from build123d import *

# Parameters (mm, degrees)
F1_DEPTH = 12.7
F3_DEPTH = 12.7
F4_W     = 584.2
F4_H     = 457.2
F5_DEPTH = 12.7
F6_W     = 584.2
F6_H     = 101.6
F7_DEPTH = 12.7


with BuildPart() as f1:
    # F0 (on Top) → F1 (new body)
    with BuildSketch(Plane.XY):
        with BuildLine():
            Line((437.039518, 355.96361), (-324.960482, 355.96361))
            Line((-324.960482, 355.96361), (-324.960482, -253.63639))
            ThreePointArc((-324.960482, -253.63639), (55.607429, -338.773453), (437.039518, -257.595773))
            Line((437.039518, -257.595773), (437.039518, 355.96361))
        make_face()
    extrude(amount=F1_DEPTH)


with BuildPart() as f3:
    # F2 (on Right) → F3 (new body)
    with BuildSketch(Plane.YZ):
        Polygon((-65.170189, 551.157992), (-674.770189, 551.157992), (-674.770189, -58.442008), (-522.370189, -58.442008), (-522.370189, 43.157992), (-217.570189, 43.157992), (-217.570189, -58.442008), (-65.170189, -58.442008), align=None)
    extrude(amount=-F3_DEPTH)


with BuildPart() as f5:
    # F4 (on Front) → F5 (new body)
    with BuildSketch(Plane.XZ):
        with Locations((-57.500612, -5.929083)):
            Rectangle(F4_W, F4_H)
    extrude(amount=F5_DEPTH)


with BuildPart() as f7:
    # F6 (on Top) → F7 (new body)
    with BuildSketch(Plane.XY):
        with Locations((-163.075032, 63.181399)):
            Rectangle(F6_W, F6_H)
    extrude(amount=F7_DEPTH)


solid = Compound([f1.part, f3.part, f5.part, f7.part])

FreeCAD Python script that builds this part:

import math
import FreeCAD as App
import Part
import Sketcher
from FreeCAD import Vector
Q = App.Units.Quantity

doc = App.newDocument("Part")
params = doc.addObject("Spreadsheet::Sheet", "Params")
for row, (alias, value) in enumerate([
    ("sketch1_radius", "36.0000001 in"),
    ("sketch1_width", "30 in"),
    ("sketch1_height", "24 in"),
    ("pad1_length", "0.5 in"),
    ("sketch2_width", "24 in"),
    ("sketch2_width2", "6 in"),
    ("sketch2_height", "4 in"),
    ("pad2_length", "0.5 in"),
    ("sketch3_width", "23 in"),
    ("sketch3_height", "18 in"),
    ("pad3_length", "0.5 in"),
    ("sketch4_width", "23 in"),
    ("sketch4_height", "4 in"),
    ("pad4_length", "0.5 in"),
], start=1):
    params.set(f"A{row}", alias)
    params.set(f"B{row}", "=" + value)
    params.setAlias(f"B{row}", alias)

body = doc.addObject("PartDesign::Body", "Body")

# Sketch on XY plane
sketch1 = body.newObject("Sketcher::SketchObject", "Sketch")
sketch1.AttachmentSupport = (doc.getObject("XY_Plane"), [""])
sketch1.MapMode = "FlatFace"
sketch1.addGeometry(Part.LineSegment(Vector(437, 356, 0), Vector(-325, 356, 0)), False)
sketch1.addGeometry(Part.LineSegment(Vector(-325, 356, 0), Vector(-325, -254, 0)), False)
sketch1.addGeometry(Part.ArcOfCircle(Part.Circle(Vector(60, 576, 0), Vector(0, 0, 1), 914), math.radians(-115), math.radians(-66)), False)
sketch1.addGeometry(Part.LineSegment(Vector(437, -258, 0), Vector(437, 356, 0)), False)
sketch1.addConstraint(Sketcher.Constraint("Coincident", 0, 2, 1, 1))
sketch1.addConstraint(Sketcher.Constraint("Coincident", 1, 2, 2, 1))
sketch1.addConstraint(Sketcher.Constraint("Coincident", 2, 2, 3, 1))
sketch1.addConstraint(Sketcher.Constraint("Coincident", 3, 2, 0, 1))
sketch1.addConstraint(Sketcher.Constraint("Horizontal", 0))
sketch1.addConstraint(Sketcher.Constraint("Vertical", 1))
sketch1.addConstraint(Sketcher.Constraint("Vertical", 3))
sketch1.addConstraint(Sketcher.Constraint("Radius", 2, Q("36.0000001 in")))
sketch1.addConstraint(Sketcher.Constraint("DistanceX", 0, 2, 0, 1, Q("30 in")))
sketch1.addConstraint(Sketcher.Constraint("DistanceY", 1, 2, 1, 1, Q("24 in")))
sketch1.addConstraint(Sketcher.Constraint("DistanceY", 3, 1, 3, 2, 613.559383))
sketch1.addConstraint(Sketcher.Constraint("DistanceX", 0, 2, -1, 1, 324.960482))
sketch1.addConstraint(Sketcher.Constraint("DistanceY", -1, 1, 0, 2, 355.96361))
sketch1.setExpression("Constraints[7]", "Params.sketch1_radius")
sketch1.setExpression("Constraints[8]", "Params.sketch1_width")
sketch1.setExpression("Constraints[9]", "Params.sketch1_height")
pad1 = body.newObject("PartDesign::Pad", "Pad")
pad1.Profile = sketch1
pad1.setExpression("Length", "Params.pad1_length")
body2 = doc.addObject("PartDesign::Body", "Body001")

# Sketch on YZ plane
sketch2 = body2.newObject("Sketcher::SketchObject", "Sketch001")
sketch2.AttachmentSupport = (doc.getObject("YZ_Plane001"), [""])
sketch2.MapMode = "FlatFace"
sketch2.addGeometry(Part.LineSegment(Vector(-65, 551, 0), Vector(-675, 551, 0)), False)
sketch2.addGeometry(Part.LineSegment(Vector(-675, 551, 0), Vector(-675, -58, 0)), False)
sketch2.addGeometry(Part.LineSegment(Vector(-675, -58, 0), Vector(-522, -58, 0)), False)
sketch2.addGeometry(Part.LineSegment(Vector(-522, -58, 0), Vector(-522, 43, 0)), False)
sketch2.addGeometry(Part.LineSegment(Vector(-522, 43, 0), Vector(-218, 43, 0)), False)
sketch2.addGeometry(Part.LineSegment(Vector(-218, 43, 0), Vector(-218, -58, 0)), False)
sketch2.addGeometry(Part.LineSegment(Vector(-218, -58, 0), Vector(-65, -58, 0)), False)
sketch2.addGeometry(Part.LineSegment(Vector(-65, -58, 0), Vector(-65, 551, 0)), False)
sketch2.addConstraint(Sketcher.Constraint("Coincident", 0, 2, 1, 1))
sketch2.addConstraint(Sketcher.Constraint("Coincident", 1, 2, 2, 1))
sketch2.addConstraint(Sketcher.Constraint("Coincident", 2, 2, 3, 1))
sketch2.addConstraint(Sketcher.Constraint("Coincident", 3, 2, 4, 1))
sketch2.addConstraint(Sketcher.Constraint("Coincident", 4, 2, 5, 1))
sketch2.addConstraint(Sketcher.Constraint("Coincident", 5, 2, 6, 1))
sketch2.addConstraint(Sketcher.Constraint("Coincident", 6, 2, 7, 1))
sketch2.addConstraint(Sketcher.Constraint("Coincident", 7, 2, 0, 1))
sketch2.addConstraint(Sketcher.Constraint("Horizontal", 0))
sketch2.addConstraint(Sketcher.Constraint("Vertical", 1))
sketch2.addConstraint(Sketcher.Constraint("Horizontal", 2))
sketch2.addConstraint(Sketcher.Constraint("Vertical", 3))
sketch2.addConstraint(Sketcher.Constraint("Horizontal", 4))
sketch2.addConstraint(Sketcher.Constraint("Vertical", 5))
sketch2.addConstraint(Sketcher.Constraint("Horizontal", 6))
sketch2.addConstraint(Sketcher.Constraint("Vertical", 7))
sketch2.addConstraint(Sketcher.Constraint("Horizontal", 2, 2, 5, 2))
sketch2.addConstraint(Sketcher.Constraint("Equal", 2, 6))
sketch2.addConstraint(Sketcher.Constraint("Equal", 0, 1))
sketch2.addConstraint(Sketcher.Constraint("DistanceX", 0, 2, 0, 1, Q("24 in")))
sketch2.addConstraint(Sketcher.Constraint("DistanceX", 2, 1, 2, 2, Q("6 in")))
sketch2.addConstraint(Sketcher.Constraint("DistanceY", 3, 1, 3, 2, Q("4 in")))
sketch2.addConstraint(Sketcher.Constraint("DistanceX", 0, 2, -1, 1, 674.770189))
sketch2.addConstraint(Sketcher.Constraint("DistanceY", -1, 1, 0, 2, 551.157992))
sketch2.setExpression("Constraints[19]", "Params.sketch2_width")
sketch2.setExpression("Constraints[20]", "Params.sketch2_width2")
sketch2.setExpression("Constraints[21]", "Params.sketch2_height")
pad2 = body2.newObject("PartDesign::Pad", "Pad001")
pad2.Profile = sketch2
pad2.setExpression("Length", "Params.pad2_length")
pad2.Reversed = True
body3 = doc.addObject("PartDesign::Body", "Body002")

# Sketch on XZ plane
sketch3 = body3.newObject("Sketcher::SketchObject", "Sketch002")
sketch3.AttachmentSupport = (doc.getObject("XZ_Plane002"), [""])
sketch3.MapMode = "FlatFace"
sketch3.addGeometry(Part.LineSegment(Vector(-350, 223, 0), Vector(-350, -235, 0)), False)
sketch3.addGeometry(Part.LineSegment(Vector(-350, -235, 0), Vector(235, -235, 0)), False)
sketch3.addGeometry(Part.LineSegment(Vector(235, -235, 0), Vector(235, 223, 0)), False)
sketch3.addGeometry(Part.LineSegment(Vector(235, 223, 0), Vector(-350, 223, 0)), False)
sketch3.addConstraint(Sketcher.Constraint("Coincident", 0, 2, 1, 1))
sketch3.addConstraint(Sketcher.Constraint("Coincident", 1, 2, 2, 1))
sketch3.addConstraint(Sketcher.Constraint("Coincident", 2, 2, 3, 1))
sketch3.addConstraint(Sketcher.Constraint("Coincident", 3, 2, 0, 1))
sketch3.addConstraint(Sketcher.Constraint("Vertical", 0))
sketch3.addConstraint(Sketcher.Constraint("Horizontal", 1))
sketch3.addConstraint(Sketcher.Constraint("Vertical", 2))
sketch3.addConstraint(Sketcher.Constraint("Horizontal", 3))
sketch3.addConstraint(Sketcher.Constraint("DistanceX", 1, 1, 1, 2, Q("23 in")))
sketch3.addConstraint(Sketcher.Constraint("DistanceY", 0, 2, 0, 1, Q("18 in")))
sketch3.addConstraint(Sketcher.Constraint("DistanceX", 0, 2, -1, 1, 349.600612))
sketch3.addConstraint(Sketcher.Constraint("DistanceY", 0, 2, -1, 1, 234.529083))
sketch3.setExpression("Constraints[8]", "Params.sketch3_width")
sketch3.setExpression("Constraints[9]", "Params.sketch3_height")
pad3 = body3.newObject("PartDesign::Pad", "Pad002")
pad3.Profile = sketch3
pad3.setExpression("Length", "Params.pad3_length")
body4 = doc.addObject("PartDesign::Body", "Body003")

# Sketch on XY plane
sketch4 = body4.newObject("Sketcher::SketchObject", "Sketch003")
sketch4.AttachmentSupport = (doc.getObject("XY_Plane003"), [""])
sketch4.MapMode = "FlatFace"
sketch4.addGeometry(Part.LineSegment(Vector(-455, 114, 0), Vector(-455, 12, 0)), False)
sketch4.addGeometry(Part.LineSegment(Vector(-455, 12, 0), Vector(129, 12, 0)), False)
sketch4.addGeometry(Part.LineSegment(Vector(129, 12, 0), Vector(129, 114, 0)), False)
sketch4.addGeometry(Part.LineSegment(Vector(129, 114, 0), Vector(-455, 114, 0)), False)
sketch4.addConstraint(Sketcher.Constraint("Coincident", 0, 2, 1, 1))
sketch4.addConstraint(Sketcher.Constraint("Coincident", 1, 2, 2, 1))
sketch4.addConstraint(Sketcher.Constraint("Coincident", 2, 2, 3, 1))
sketch4.addConstraint(Sketcher.Constraint("Coincident", 3, 2, 0, 1))
sketch4.addConstraint(Sketcher.Constraint("Vertical", 0))
sketch4.addConstraint(Sketcher.Constraint("Horizontal", 1))
sketch4.addConstraint(Sketcher.Constraint("Vertical", 2))
sketch4.addConstraint(Sketcher.Constraint("Horizontal", 3))
sketch4.addConstraint(Sketcher.Constraint("DistanceX", 1, 1, 1, 2, Q("23 in")))
sketch4.addConstraint(Sketcher.Constraint("DistanceY", 0, 2, 0, 1, Q("4 in")))
sketch4.addConstraint(Sketcher.Constraint("DistanceY", -1, 1, 0, 2, 12.381399))
sketch4.addConstraint(Sketcher.Constraint("DistanceX", 0, 2, -1, 1, 455.175032))
sketch4.setExpression("Constraints[8]", "Params.sketch4_width")
sketch4.setExpression("Constraints[9]", "Params.sketch4_height")
pad4 = body4.newObject("PartDesign::Pad", "Pad003")
pad4.Profile = sketch4
pad4.setExpression("Length", "Params.pad4_length")

doc.recompute()
